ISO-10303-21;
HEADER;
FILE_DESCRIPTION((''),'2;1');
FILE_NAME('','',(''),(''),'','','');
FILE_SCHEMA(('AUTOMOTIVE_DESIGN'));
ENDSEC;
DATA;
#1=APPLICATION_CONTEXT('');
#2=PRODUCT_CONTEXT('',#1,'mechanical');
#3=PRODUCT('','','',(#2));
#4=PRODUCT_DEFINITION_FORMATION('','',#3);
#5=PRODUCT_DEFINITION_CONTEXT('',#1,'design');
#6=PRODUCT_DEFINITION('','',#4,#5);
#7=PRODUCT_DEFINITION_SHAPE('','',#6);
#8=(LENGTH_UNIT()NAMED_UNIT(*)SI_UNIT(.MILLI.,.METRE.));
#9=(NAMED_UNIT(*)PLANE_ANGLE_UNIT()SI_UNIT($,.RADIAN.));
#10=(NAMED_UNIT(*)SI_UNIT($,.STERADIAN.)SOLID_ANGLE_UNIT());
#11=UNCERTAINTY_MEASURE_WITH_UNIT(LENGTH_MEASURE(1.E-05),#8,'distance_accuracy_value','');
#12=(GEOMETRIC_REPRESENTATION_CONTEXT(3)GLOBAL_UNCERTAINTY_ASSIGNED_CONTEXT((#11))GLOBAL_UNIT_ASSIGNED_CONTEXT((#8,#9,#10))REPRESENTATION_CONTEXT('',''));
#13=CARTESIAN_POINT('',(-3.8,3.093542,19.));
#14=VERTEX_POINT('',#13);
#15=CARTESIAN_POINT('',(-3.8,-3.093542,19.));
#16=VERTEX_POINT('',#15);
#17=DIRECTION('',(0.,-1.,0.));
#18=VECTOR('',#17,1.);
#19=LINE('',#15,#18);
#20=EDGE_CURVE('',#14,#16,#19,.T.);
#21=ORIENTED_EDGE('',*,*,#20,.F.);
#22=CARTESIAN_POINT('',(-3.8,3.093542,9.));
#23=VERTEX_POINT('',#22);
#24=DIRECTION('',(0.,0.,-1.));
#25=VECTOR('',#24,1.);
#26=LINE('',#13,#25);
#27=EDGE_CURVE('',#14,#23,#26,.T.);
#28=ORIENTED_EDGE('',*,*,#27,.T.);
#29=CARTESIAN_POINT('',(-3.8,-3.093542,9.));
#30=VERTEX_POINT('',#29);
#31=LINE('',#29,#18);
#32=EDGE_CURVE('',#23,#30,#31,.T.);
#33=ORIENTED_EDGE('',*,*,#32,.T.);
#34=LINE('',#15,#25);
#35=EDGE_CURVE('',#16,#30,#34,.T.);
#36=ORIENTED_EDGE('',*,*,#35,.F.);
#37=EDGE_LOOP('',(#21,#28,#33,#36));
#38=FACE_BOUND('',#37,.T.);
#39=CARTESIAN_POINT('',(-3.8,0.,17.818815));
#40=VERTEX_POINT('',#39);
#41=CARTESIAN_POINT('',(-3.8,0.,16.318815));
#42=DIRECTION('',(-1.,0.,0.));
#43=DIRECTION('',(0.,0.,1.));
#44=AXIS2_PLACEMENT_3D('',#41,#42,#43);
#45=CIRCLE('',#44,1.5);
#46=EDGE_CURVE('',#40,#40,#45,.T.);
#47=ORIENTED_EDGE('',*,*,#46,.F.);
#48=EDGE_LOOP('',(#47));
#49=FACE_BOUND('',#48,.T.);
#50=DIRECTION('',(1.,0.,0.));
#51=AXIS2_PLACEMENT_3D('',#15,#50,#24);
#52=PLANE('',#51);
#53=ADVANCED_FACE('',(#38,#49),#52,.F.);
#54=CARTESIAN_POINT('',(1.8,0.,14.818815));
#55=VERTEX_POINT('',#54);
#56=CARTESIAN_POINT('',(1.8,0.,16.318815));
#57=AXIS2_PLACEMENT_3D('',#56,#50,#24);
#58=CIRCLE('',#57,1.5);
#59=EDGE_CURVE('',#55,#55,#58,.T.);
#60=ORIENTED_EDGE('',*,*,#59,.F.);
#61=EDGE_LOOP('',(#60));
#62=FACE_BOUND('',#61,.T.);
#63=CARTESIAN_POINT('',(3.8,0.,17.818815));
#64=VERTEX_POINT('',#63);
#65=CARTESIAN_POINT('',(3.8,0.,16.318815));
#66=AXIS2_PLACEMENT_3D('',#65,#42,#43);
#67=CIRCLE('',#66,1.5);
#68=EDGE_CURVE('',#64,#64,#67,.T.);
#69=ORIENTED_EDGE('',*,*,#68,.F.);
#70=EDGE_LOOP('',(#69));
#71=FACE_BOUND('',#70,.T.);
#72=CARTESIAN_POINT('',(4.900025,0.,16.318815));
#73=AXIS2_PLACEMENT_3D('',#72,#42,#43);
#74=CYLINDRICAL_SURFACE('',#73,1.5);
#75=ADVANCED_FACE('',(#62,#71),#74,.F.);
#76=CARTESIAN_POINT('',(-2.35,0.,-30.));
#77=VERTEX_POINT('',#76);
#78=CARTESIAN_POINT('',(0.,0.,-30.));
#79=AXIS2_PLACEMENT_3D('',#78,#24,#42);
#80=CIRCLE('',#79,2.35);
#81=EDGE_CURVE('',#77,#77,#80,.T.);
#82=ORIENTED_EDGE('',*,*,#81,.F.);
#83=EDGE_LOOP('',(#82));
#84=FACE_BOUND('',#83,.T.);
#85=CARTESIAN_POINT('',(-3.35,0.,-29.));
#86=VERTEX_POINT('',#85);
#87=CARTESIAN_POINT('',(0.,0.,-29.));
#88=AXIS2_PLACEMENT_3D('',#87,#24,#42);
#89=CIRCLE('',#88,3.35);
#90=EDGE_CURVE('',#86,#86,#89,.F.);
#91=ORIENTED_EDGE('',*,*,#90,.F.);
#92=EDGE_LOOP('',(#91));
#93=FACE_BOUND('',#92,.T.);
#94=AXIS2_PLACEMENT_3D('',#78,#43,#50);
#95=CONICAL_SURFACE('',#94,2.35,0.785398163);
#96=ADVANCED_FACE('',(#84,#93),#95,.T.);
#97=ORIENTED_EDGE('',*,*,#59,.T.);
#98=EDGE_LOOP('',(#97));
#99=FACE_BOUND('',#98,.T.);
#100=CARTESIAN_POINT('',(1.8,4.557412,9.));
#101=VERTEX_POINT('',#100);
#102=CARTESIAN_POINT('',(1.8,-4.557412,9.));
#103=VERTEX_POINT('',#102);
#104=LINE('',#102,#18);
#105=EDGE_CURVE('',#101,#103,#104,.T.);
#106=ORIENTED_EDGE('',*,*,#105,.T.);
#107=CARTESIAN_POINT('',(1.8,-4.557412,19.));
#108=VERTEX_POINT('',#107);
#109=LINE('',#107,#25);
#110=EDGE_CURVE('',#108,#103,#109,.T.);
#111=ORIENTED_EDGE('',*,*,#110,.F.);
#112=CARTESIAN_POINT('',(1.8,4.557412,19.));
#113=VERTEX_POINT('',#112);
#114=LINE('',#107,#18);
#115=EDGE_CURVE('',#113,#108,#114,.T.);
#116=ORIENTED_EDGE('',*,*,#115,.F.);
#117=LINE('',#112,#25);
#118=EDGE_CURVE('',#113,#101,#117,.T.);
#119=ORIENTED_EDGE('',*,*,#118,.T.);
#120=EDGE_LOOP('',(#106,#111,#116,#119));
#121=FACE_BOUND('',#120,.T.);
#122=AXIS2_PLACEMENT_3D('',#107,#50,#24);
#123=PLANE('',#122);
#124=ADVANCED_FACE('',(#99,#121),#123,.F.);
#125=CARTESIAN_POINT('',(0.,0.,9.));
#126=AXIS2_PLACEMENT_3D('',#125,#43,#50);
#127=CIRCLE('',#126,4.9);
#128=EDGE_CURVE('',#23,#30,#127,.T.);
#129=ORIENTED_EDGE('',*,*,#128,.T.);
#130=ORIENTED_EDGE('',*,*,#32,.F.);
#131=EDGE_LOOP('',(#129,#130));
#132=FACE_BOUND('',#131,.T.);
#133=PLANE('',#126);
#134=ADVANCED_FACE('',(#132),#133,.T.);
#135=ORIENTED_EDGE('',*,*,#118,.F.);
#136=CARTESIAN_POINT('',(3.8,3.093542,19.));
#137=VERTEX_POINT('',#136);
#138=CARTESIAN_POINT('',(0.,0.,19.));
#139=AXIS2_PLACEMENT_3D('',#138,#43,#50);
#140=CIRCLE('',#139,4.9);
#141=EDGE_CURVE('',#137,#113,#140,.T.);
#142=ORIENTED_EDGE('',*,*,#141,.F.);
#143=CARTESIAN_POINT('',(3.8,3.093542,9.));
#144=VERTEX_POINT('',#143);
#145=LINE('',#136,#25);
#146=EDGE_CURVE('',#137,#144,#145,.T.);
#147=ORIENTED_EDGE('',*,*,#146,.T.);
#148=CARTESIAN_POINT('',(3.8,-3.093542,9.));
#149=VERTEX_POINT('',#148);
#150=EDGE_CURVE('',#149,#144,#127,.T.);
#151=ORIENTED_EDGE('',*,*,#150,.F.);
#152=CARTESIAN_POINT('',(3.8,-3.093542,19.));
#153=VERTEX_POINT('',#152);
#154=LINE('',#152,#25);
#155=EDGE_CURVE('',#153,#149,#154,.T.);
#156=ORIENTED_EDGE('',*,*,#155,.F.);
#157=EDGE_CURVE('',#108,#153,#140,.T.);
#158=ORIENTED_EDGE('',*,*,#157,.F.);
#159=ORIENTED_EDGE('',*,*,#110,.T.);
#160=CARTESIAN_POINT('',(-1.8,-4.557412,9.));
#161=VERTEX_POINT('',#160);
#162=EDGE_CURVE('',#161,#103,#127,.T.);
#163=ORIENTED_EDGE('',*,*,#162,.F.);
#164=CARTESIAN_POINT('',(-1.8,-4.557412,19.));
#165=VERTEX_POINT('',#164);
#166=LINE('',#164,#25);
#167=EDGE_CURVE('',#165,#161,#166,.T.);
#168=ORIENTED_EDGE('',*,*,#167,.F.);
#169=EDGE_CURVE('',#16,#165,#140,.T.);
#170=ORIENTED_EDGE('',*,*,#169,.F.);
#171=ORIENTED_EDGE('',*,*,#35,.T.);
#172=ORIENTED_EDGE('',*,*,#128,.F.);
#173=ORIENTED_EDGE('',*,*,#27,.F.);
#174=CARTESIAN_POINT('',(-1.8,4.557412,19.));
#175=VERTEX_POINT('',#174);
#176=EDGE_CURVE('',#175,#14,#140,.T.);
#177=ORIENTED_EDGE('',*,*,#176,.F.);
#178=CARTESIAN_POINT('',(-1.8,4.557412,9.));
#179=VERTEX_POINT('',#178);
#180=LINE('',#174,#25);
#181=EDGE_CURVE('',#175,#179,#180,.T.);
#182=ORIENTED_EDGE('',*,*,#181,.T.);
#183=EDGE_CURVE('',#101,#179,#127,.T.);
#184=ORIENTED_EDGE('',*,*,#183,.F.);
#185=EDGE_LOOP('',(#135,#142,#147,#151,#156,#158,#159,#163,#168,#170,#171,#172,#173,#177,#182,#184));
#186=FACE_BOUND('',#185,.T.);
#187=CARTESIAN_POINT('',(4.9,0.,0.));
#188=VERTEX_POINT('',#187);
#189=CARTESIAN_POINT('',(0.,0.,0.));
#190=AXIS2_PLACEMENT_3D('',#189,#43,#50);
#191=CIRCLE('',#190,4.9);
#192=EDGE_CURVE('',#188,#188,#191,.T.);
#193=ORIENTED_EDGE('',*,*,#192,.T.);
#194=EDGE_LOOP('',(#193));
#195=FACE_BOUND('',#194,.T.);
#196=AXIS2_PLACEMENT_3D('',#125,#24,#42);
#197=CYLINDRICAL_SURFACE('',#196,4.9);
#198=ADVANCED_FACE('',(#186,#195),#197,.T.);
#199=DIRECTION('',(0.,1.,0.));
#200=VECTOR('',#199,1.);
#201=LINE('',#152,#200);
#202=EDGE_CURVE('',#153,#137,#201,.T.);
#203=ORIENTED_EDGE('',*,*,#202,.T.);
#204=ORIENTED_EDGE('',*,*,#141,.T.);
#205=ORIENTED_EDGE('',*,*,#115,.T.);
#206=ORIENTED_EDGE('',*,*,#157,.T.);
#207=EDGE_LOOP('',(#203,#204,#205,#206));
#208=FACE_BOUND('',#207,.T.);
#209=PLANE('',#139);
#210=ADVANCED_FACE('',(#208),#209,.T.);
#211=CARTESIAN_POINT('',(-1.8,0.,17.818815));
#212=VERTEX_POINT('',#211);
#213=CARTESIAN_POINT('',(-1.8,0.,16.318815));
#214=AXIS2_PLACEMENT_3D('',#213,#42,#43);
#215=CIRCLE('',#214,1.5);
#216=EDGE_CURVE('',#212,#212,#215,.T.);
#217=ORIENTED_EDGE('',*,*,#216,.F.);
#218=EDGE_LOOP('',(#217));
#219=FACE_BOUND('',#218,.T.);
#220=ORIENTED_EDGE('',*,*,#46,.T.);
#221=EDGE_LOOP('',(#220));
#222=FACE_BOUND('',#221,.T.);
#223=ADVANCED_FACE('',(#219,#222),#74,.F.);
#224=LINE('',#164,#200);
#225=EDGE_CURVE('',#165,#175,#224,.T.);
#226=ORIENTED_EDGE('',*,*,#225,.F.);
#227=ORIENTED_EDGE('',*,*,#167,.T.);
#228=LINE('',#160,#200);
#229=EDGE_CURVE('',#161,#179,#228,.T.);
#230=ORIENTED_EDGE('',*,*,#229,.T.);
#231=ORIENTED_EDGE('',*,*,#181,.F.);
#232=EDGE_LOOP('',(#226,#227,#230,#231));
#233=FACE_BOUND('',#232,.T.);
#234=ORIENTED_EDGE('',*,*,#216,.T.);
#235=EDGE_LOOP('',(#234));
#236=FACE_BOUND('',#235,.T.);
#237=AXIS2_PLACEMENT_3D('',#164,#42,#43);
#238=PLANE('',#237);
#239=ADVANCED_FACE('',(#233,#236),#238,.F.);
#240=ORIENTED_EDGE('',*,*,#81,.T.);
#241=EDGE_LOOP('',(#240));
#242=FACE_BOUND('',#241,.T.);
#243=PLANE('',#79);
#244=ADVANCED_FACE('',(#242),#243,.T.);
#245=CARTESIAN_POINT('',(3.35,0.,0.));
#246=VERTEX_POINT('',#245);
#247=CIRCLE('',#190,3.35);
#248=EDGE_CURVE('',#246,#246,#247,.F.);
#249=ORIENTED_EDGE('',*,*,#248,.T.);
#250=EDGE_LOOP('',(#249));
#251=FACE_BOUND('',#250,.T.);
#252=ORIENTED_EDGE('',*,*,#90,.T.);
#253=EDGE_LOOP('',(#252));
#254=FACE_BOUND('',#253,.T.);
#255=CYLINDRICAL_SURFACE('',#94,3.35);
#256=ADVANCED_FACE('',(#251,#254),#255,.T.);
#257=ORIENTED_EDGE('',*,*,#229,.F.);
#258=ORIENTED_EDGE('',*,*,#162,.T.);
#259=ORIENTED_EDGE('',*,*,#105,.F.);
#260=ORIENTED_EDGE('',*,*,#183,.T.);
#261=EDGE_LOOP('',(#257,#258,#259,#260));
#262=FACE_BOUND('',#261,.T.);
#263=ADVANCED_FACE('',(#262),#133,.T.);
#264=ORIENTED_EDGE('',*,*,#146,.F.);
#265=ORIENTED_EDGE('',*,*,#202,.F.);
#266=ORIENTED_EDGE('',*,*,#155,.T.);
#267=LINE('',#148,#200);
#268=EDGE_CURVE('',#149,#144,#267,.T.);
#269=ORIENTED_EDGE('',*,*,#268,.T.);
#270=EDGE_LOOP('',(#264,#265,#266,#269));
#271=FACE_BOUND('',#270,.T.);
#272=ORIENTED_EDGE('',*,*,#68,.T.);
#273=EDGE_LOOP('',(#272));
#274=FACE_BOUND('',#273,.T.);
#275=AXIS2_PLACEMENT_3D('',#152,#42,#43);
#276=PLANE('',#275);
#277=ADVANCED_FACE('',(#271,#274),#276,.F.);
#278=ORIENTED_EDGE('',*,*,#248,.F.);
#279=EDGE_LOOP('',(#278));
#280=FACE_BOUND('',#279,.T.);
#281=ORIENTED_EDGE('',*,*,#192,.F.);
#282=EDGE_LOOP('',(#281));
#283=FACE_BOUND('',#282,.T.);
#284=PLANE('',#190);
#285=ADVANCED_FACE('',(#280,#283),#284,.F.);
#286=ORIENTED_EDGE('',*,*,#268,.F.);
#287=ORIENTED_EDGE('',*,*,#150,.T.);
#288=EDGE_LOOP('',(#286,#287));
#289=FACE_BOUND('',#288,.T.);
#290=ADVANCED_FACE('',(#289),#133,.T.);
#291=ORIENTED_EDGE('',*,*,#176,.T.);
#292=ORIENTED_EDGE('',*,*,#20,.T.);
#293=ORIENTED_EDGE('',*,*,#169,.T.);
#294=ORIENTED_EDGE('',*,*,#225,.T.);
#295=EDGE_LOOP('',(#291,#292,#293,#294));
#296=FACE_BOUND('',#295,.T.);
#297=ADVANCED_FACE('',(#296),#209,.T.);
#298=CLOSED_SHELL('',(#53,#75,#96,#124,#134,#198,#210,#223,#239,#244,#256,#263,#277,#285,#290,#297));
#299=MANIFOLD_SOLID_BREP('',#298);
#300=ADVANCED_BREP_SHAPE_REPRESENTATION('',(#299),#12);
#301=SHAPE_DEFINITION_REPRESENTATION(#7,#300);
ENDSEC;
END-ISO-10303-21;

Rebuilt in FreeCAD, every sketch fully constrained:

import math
import FreeCAD as App
import Part
import Sketcher
Q = App.Units.Quantity


def edges_at(feature, points):
    """Names of the edges that pass closest to the given points."""
    edges = feature.Shape.Edges
    near = lambda p: min(range(len(edges)), key=lambda i: edges[i].distToShape(Part.Vertex(*p))[0])
    return sorted({f"Edge{near(p) + 1}" for p in points})

doc = App.newDocument("Part")
body = doc.addObject("PartDesign::Body", "Body")

sketch1 = body.newObject("Sketcher::SketchObject", "Sketch")
sketch1.AttachmentSupport = (doc.getObject("XY_Plane"), [""])
sketch1.MapMode = "FlatFace"
sketch1.addGeometry(Part.Circle(App.Vector(0, 0, 0), App.Vector(0, 0, 1), 4.9), False)
sketch1.addConstraint([
    Sketcher.Constraint("Coincident", 0, 3, -1, 1),
    Sketcher.Constraint("Diameter", 0, Q("9.8 mm")),
])
pad1 = body.newObject("PartDesign::Pad", "Pad")
pad1.Profile = sketch1
pad1.Length = 9

sketch2 = body.newObject("Sketcher::SketchObject", "Sketch001")
sketch2.AttachmentSupport = (doc.getObject("XY_Plane"), [""])
sketch2.MapMode = "FlatFace"
sketch2.AttachmentOffset = App.Placement(App.Vector(0, 0, 9), App.Rotation())
sketch2.addGeometry([
    Part.LineSegment(App.Vector(-1.8, -4.6, 0), App.Vector(-1.8, 4.6, 0)),
    Part.ArcOfCircle(Part.Circle(App.Vector(0, 0, 0), App.Vector(0, 0, 1), 4.9), math.radians(112), math.radians(141)),
    Part.LineSegment(App.Vector(-3.8, 3.1, 0), App.Vector(-3.8, -3.1, 0)),
    Part.ArcOfCircle(Part.Circle(App.Vector(0, 0, 0), App.Vector(0, 0, 1), 4.9), math.radians(-141), math.radians(-112)),
    Part.LineSegment(App.Vector(1.8, 4.6, 0), App.Vector(1.8, -4.6, 0)),
    Part.ArcOfCircle(Part.Circle(App.Vector(0, 0, 0), App.Vector(0, 0, 1), 4.9), math.radians(-68), math.radians(-39)),
    Part.LineSegment(App.Vector(3.8, -3.1, 0), App.Vector(3.8, 3.1, 0)),
    Part.ArcOfCircle(Part.Circle(App.Vector(0, 0, 0), App.Vector(0, 0, 1), 4.9), math.radians(39), math.radians(68)),
], False)
sketch2.addConstraint([
    Sketcher.Constraint("Coincident", 0, 2, 1, 1),
    Sketcher.Constraint("Coincident", 1, 2, 2, 1),
    Sketcher.Constraint("Coincident", 2, 2, 3, 1),
    Sketcher.Constraint("Coincident", 3, 2, 0, 1),
    Sketcher.Constraint("Coincident", 4, 2, 5, 1),
    Sketcher.Constraint("Coincident", 5, 2, 6, 1),
    Sketcher.Constraint("Coincident", 6, 2, 7, 1),
    Sketcher.Constraint("Coincident", 7, 2, 4, 1),
    Sketcher.Constraint("Vertical", 0),
    Sketcher.Constraint("Vertical", 2),
    Sketcher.Constraint("Vertical", 4),
    Sketcher.Constraint("Vertical", 6),
    Sketcher.Constraint("Coincident", 1, 3, -1, 1),
    Sketcher.Constraint("Coincident", 3, 3, -1, 1),
    Sketcher.Constraint("Coincident", 5, 3, -1, 1),
    Sketcher.Constraint("Coincident", 7, 3, -1, 1),
    Sketcher.Constraint("Equal", 1, 3),
    Sketcher.Constraint("Equal", 3, 5),
    Sketcher.Constraint("Equal", 5, 7),
    Sketcher.Constraint("Horizontal", 3, 2, 4, 2),
    Sketcher.Constraint("Horizontal", 2, 2, 5, 2),
    Sketcher.Constraint("Radius", 1, Q("4.9 mm")),
    Sketcher.Constraint("DistanceX", 1, 2, 0, 2, Q("2 mm")),
    Sketcher.Constraint("DistanceX", 0, 2, -1, 1, Q("1.8 mm")),
])
pad2 = body.newObject("PartDesign::Pad", "Pad001")
pad2.Profile = sketch2
pad2.Length = 10

sketch3 = body.newObject("Sketcher::SketchObject", "Sketch002")
sketch3.AttachmentSupport = (doc.getObject("YZ_Plane"), [""])
sketch3.MapMode = "FlatFace"
sketch3.AttachmentOffset = App.Placement(App.Vector(0, 0, -3.8), App.Rotation())
sketch3.addGeometry(Part.Circle(App.Vector(0, 16.3, 0), App.Vector(0, 0, 1), 1.5), False)
sketch3.addConstraint([
    Sketcher.Constraint("PointOnObject", 0, 3, -2),
    Sketcher.Constraint("Diameter", 0, Q("3 mm")),
    Sketcher.Constraint("DistanceY", -1, 1, 0, 3, Q("16.318815 mm")),
])
pocket1 = body.newObject("PartDesign::Pocket", "Pocket")
pocket1.Profile = sketch3
pocket1.Type = "ThroughAll"
pocket1.Reversed = True

sketch4 = body.newObject("Sketcher::SketchObject", "Sketch003")
sketch4.AttachmentSupport = (doc.getObject("XY_Plane"), [""])
sketch4.MapMode = "FlatFace"
sketch4.addGeometry(Part.Circle(App.Vector(0, 0, 0), App.Vector(0, 0, 1), 3.4), False)
sketch4.addConstraint([
    Sketcher.Constraint("Coincident", 0, 3, -1, 1),
    Sketcher.Constraint("Diameter", 0, Q("6.7 mm")),
])
pad3 = body.newObject("PartDesign::Pad", "Pad002")
pad3.Profile = sketch4
pad3.Length = 30
pad3.Reversed = True
doc.recompute()

chamfer = body.newObject("PartDesign::Chamfer", "Chamfer")
chamfer.Base = (pad3, edges_at(pad3, [(-3.35, 0, -30)]))
chamfer.Size = 1

doc.recompute()
